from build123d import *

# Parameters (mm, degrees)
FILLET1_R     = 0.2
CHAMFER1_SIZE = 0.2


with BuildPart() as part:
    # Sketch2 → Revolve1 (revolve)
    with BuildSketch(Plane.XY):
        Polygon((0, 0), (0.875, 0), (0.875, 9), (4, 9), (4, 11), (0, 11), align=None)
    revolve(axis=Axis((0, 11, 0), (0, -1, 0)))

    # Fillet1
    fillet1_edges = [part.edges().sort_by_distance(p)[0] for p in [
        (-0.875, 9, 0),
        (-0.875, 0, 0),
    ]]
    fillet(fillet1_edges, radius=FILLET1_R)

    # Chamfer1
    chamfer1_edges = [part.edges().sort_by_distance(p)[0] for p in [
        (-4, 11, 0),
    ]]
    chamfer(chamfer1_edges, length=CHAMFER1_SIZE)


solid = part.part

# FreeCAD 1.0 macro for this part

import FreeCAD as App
import Part
import Sketcher
from FreeCAD import Vector
Q = App.Units.Quantity


def edges_at(feature, points):
    """Names of the edges that pass closest to the given points."""
    edges = feature.Shape.Edges
    near = lambda p: min(range(len(edges)), key=lambda i: edges[i].distToShape(Part.Vertex(*p))[0])
    return sorted({f"Edge{near(p) + 1}" for p in points})


def add_polygon(sketch, points):
    """Adds a closed chain of lines whose ends are joined by coincident constraints."""
    first, n = sketch.GeometryCount, len(points)
    for a, b in zip(points, points[1:] + points[:1]):
        sketch.addGeometry(Part.LineSegment(App.Vector(*a, 0), App.Vector(*b, 0)), False)
    for i in range(n):
        sketch.addConstraint(Sketcher.Constraint("Coincident", first + i, 2, first + (i + 1) % n, 1))

doc = App.newDocument("Part")
body = doc.addObject("PartDesign::Body", "Body")

sketch1 = body.newObject("Sketcher::SketchObject", "Sketch")
sketch1.AttachmentSupport = (doc.getObject("XY_Plane"), [""])
sketch1.MapMode = "FlatFace"
add_polygon(sketch1, [(0, 0), (0.9, 0), (0.9, 9), (4, 9), (4, 11), (0, 11)])
sketch1.addConstraint(Sketcher.Constraint("Horizontal", 0))
sketch1.addConstraint(Sketcher.Constraint("Vertical", 1))
sketch1.addConstraint(Sketcher.Constraint("Horizontal", 2))
sketch1.addConstraint(Sketcher.Constraint("Vertical", 3))
sketch1.addConstraint(Sketcher.Constraint("Horizontal", 4))
sketch1.addConstraint(Sketcher.Constraint("Vertical", 5))
sketch1.addConstraint(Sketcher.Constraint("Coincident", 5, 2, -1, 1))
sketch1.addConstraint(Sketcher.Constraint("DistanceX", 4, 2, 4, 1, Q("4 mm")))
sketch1.addConstraint(Sketcher.Constraint("DistanceY", 1, 1, 1, 2, Q("9 mm")))
sketch1.addConstraint(Sketcher.Constraint("DistanceY", 3, 1, 3, 2, Q("2 mm")))
sketch1.addConstraint(Sketcher.Constraint("DistanceX", 0, 1, 0, 2, Q("0.875 mm")))
revolution = body.newObject("PartDesign::Revolution", "Revolution")
revolution.Profile = sketch1
revolution.ReferenceAxis = (sketch1, ["V_Axis"])
revolution.Angle = 360
doc.recompute()

fillet = body.newObject("PartDesign::Fillet", "Fillet")
fillet.Base = (revolution, edges_at(revolution, [(-0.875, 9, 0), (-0.875, 0, 0)]))
fillet.Radius = 0.2
doc.recompute()

chamfer = body.newObject("PartDesign::Chamfer", "Chamfer")
chamfer.Base = (fillet, edges_at(fillet, [(-4, 11, 0)]))
chamfer.Size = 0.2

doc.recompute()
